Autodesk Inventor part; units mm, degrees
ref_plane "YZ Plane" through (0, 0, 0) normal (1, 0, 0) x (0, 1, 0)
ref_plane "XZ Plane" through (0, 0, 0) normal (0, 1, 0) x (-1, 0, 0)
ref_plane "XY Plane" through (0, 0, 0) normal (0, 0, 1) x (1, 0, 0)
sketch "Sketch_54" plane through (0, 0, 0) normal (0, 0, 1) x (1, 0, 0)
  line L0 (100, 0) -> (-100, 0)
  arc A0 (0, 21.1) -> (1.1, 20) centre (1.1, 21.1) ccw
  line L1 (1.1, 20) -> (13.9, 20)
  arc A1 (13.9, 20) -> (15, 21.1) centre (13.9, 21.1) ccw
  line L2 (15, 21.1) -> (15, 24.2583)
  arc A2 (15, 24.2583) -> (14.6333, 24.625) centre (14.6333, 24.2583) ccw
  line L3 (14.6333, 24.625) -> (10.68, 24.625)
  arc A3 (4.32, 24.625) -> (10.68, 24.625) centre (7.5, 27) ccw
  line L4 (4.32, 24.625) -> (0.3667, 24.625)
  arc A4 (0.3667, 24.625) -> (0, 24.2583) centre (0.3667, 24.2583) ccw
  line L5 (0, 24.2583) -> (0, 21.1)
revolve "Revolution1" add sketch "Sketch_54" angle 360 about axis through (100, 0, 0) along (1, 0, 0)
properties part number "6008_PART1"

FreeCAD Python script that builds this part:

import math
import FreeCAD as App
import Part
import Sketcher

V = App.Vector

doc = App.newDocument("Part")
body = doc.addObject("PartDesign::Body", "Body")

sketch1 = body.newObject("Sketcher::SketchObject", "Sketch")
sketch1.AttachmentSupport = (doc.getObject("XY_Plane"), [""])
sketch1.MapMode = "FlatFace"
sketch1.addGeometry([
    Part.LineSegment(V(0, 24.26, 0), V(0, 21.1, 0)),
    Part.ArcOfCircle(Part.Circle(V(1.1, 21.1, 0), V(0, 0, 1), 1.1), math.radians(180), math.radians(270)),
    Part.LineSegment(V(1.1, 20, 0), V(13.9, 20, 0)),
    Part.ArcOfCircle(Part.Circle(V(13.9, 21.1, 0), V(0, 0, 1), 1.1), math.radians(-90), math.radians(0)),
    Part.LineSegment(V(15, 21.1, 0), V(15, 24.26, 0)),
    Part.ArcOfCircle(Part.Circle(V(14.63, 24.26, 0), V(0, 0, 1), 0.37), math.radians(0), math.radians(90)),
    Part.LineSegment(V(14.63, 24.62, 0), V(10.68, 24.62, 0)),
    Part.ArcOfCircle(Part.Circle(V(7.5, 27, 0), V(0, 0, 1), 3.97), math.radians(-143), math.radians(-37)),
    Part.LineSegment(V(4.32, 24.62, 0), V(0.37, 24.62, 0)),
    Part.ArcOfCircle(Part.Circle(V(0.37, 24.26, 0), V(0, 0, 1), 0.37), math.radians(90), math.radians(180)),
], False)
sketch1.addConstraint([
    Sketcher.Constraint("Tangent", 0, 2, 1, 1),
    Sketcher.Constraint("Tangent", 1, 2, 2, 1),
    Sketcher.Constraint("Tangent", 2, 2, 3, 1),
    Sketcher.Constraint("Tangent", 3, 2, 4, 1),
    Sketcher.Constraint("Tangent", 4, 2, 5, 1),
    Sketcher.Constraint("Tangent", 5, 2, 6, 1),
    Sketcher.Constraint("Coincident", 6, 2, 7, 2),
    Sketcher.Constraint("Coincident", 7, 1, 8, 1),
    Sketcher.Constraint("Tangent", 8, 2, 9, 1),
    Sketcher.Constraint("Tangent", 9, 2, 0, 1),
    Sketcher.Constraint("Vertical", 0),
    Sketcher.Constraint("Horizontal", 2),
    Sketcher.Constraint("Vertical", 4),
    Sketcher.Constraint("Horizontal", 6),
    Sketcher.Constraint("Horizontal", 8),
    Sketcher.Constraint("Equal", 1, 3),
    Sketcher.Constraint("Equal", 5, 9),
    Sketcher.Constraint("PointOnObject", 0, 2, -2),
    Sketcher.Constraint("Horizontal", 5, 3, 9, 3),
    Sketcher.Constraint("Equal", 6, 8),
    Sketcher.Constraint("Radius", 1, 1.1),
    Sketcher.Constraint("DistanceX", 2, 1, 2, 2, 12.8),
    Sketcher.Constraint("DistanceY", -1, 1, 7, 3, 27.0),
    Sketcher.Constraint("DistanceY", -1, 1, 1, 2, 20.0),
    Sketcher.Constraint("Radius", 7, 3.969),
    Sketcher.Constraint("Radius", 5, 0.3667),
    Sketcher.Constraint("DistanceX", -1, 1, 6, 2, 10.68),
])
revolution = body.newObject("PartDesign::Revolution", "Revolution")
revolution.Profile = sketch1
revolution.ReferenceAxis = (sketch1, ["H_Axis"])
revolution.Angle = 360

doc.recompute()
